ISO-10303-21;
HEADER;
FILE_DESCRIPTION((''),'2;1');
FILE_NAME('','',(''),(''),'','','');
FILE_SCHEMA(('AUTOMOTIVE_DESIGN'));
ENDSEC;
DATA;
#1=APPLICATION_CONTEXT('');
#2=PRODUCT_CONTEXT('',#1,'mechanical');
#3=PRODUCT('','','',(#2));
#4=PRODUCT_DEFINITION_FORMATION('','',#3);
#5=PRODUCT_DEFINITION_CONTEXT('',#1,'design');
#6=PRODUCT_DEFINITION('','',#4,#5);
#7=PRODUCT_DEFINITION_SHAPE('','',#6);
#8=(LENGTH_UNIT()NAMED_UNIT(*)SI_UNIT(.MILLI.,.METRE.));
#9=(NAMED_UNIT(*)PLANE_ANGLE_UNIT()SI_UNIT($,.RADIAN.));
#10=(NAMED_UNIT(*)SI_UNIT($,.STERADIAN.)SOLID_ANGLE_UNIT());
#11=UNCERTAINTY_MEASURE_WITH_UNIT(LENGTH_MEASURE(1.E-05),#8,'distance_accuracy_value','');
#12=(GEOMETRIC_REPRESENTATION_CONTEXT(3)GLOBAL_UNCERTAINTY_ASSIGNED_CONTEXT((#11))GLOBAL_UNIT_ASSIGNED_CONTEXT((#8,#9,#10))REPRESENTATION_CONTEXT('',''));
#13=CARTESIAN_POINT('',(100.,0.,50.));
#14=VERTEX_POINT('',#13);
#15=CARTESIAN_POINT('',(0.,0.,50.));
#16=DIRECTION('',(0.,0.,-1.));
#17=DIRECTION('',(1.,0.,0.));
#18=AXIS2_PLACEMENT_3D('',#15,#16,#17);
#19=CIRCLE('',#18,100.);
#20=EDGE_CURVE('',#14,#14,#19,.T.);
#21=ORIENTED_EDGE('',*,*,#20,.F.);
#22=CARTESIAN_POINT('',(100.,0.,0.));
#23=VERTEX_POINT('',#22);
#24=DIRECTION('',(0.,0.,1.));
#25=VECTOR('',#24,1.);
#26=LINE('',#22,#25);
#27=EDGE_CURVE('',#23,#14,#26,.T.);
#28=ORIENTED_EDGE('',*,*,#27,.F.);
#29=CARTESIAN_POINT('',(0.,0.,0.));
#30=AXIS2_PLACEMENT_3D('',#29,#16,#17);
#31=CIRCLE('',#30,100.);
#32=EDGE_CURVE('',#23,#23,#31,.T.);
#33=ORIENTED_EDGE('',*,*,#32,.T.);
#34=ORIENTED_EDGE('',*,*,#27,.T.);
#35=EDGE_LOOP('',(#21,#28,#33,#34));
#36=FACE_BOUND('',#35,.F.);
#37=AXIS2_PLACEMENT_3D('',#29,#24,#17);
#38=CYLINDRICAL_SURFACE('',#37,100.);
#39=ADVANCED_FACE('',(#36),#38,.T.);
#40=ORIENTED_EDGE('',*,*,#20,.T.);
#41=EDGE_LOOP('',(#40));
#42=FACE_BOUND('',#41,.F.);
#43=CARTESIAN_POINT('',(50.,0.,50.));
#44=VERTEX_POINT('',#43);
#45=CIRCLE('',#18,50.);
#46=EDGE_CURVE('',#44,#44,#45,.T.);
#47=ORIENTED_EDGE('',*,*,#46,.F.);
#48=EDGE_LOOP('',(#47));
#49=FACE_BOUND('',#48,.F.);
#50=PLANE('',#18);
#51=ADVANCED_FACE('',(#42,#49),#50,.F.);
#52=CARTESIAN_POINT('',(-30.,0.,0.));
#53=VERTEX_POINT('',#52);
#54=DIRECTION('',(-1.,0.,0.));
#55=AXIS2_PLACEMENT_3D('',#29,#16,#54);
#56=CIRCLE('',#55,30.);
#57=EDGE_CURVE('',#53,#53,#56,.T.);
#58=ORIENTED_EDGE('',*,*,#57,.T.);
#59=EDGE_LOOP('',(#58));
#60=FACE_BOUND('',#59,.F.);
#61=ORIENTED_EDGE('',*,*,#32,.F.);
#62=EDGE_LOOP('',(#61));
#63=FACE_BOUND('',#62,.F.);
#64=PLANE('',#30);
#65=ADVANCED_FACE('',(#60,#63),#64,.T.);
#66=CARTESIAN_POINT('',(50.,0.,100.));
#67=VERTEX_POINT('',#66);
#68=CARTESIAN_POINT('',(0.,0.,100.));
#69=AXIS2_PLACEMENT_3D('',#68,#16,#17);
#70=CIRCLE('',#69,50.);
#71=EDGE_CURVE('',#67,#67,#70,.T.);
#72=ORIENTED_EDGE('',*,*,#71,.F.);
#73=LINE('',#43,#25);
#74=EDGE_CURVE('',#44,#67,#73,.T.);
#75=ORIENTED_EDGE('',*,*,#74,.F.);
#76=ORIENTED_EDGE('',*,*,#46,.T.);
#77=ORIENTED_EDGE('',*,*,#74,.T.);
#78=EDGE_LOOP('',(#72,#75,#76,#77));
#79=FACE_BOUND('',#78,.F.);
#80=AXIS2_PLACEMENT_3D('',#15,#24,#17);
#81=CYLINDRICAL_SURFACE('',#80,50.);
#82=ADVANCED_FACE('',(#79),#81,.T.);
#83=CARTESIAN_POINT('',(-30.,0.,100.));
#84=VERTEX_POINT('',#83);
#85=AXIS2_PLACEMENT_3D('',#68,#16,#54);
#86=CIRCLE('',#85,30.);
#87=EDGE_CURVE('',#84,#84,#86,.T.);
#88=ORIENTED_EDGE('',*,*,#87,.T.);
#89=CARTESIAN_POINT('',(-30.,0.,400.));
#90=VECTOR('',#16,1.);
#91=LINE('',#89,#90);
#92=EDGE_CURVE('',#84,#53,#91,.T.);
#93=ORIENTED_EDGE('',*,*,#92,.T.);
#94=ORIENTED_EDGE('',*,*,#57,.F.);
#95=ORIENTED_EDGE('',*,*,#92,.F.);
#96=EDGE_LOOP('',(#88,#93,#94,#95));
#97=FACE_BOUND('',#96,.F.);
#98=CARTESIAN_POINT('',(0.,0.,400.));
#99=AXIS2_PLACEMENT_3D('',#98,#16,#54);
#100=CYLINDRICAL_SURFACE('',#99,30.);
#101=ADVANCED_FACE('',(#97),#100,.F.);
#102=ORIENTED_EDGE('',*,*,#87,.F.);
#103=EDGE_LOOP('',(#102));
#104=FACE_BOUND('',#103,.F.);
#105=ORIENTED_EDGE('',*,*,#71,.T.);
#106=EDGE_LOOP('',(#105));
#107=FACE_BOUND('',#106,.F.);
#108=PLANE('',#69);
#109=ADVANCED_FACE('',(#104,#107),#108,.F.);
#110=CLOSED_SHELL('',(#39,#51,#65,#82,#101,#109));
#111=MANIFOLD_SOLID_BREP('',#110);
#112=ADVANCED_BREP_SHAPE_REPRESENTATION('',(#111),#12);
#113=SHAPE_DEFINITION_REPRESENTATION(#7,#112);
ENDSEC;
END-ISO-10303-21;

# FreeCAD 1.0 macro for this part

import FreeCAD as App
import Part
import Sketcher


def add_polygon(sketch, points):
    """Adds a closed chain of lines whose ends are joined by coincident constraints."""
    first, n = sketch.GeometryCount, len(points)
    for a, b in zip(points, points[1:] + points[:1]):
        sketch.addGeometry(Part.LineSegment(App.Vector(*a, 0), App.Vector(*b, 0)), False)
    for i in range(n):
        sketch.addConstraint(Sketcher.Constraint("Coincident", first + i, 2, first + (i + 1) % n, 1))

doc = App.newDocument("Part")
body = doc.addObject("PartDesign::Body", "Body")

# Sketch on XZ plane
sketch1 = body.newObject("Sketcher::SketchObject", "Sketch")
sketch1.AttachmentSupport = (doc.getObject("XZ_Plane"), [""])
sketch1.MapMode = "FlatFace"
add_polygon(sketch1, [(0, 100), (0, 0), (100, 0), (100, 50), (50, 50), (50, 100)])  # lines 0-5
sketch1.addConstraint([
    Sketcher.Constraint("Vertical", 0),
    Sketcher.Constraint("Horizontal", 1),
    Sketcher.Constraint("Vertical", 2),
    Sketcher.Constraint("Horizontal", 3),
    Sketcher.Constraint("Vertical", 4),
    Sketcher.Constraint("Horizontal", 5),
    Sketcher.Constraint("Coincident", 0, 2, -1, 1),
    Sketcher.Constraint("Equal", 3, 5),
    Sketcher.Constraint("Equal", 1, 0),
    Sketcher.Constraint("Equal", 5, 2),
    Sketcher.Constraint("DistanceX", 1, 1, 1, 2, 100.0),
])
revolution = body.newObject("PartDesign::Revolution", "Revolution")
revolution.Profile = sketch1
revolution.ReferenceAxis = (sketch1, ["V_Axis"])
revolution.Angle = 360

# Sketch on XY plane
sketch2 = body.newObject("Sketcher::SketchObject", "Sketch001")
sketch2.AttachmentSupport = (doc.getObject("XY_Plane"), [""])
sketch2.MapMode = "FlatFace"
sketch2.AttachmentOffset = App.Placement(App.Vector(0, 0, 100), App.Rotation())
sketch2.addGeometry(Part.Circle(App.Vector(0, 0, 0), App.Vector(0, 0, 1), 30), False)
sketch2.addConstraint([
    Sketcher.Constraint("Coincident", 0, 3, -1, 1),
    Sketcher.Constraint("Diameter", 0, 60.0),
])
doc.recompute()
hole = body.newObject("PartDesign::Hole", "Hole")
hole.Profile = sketch2
hole.ThreadType = "None"
hole.Diameter = 60
hole.DepthType = "ThroughAll"

doc.recompute()
